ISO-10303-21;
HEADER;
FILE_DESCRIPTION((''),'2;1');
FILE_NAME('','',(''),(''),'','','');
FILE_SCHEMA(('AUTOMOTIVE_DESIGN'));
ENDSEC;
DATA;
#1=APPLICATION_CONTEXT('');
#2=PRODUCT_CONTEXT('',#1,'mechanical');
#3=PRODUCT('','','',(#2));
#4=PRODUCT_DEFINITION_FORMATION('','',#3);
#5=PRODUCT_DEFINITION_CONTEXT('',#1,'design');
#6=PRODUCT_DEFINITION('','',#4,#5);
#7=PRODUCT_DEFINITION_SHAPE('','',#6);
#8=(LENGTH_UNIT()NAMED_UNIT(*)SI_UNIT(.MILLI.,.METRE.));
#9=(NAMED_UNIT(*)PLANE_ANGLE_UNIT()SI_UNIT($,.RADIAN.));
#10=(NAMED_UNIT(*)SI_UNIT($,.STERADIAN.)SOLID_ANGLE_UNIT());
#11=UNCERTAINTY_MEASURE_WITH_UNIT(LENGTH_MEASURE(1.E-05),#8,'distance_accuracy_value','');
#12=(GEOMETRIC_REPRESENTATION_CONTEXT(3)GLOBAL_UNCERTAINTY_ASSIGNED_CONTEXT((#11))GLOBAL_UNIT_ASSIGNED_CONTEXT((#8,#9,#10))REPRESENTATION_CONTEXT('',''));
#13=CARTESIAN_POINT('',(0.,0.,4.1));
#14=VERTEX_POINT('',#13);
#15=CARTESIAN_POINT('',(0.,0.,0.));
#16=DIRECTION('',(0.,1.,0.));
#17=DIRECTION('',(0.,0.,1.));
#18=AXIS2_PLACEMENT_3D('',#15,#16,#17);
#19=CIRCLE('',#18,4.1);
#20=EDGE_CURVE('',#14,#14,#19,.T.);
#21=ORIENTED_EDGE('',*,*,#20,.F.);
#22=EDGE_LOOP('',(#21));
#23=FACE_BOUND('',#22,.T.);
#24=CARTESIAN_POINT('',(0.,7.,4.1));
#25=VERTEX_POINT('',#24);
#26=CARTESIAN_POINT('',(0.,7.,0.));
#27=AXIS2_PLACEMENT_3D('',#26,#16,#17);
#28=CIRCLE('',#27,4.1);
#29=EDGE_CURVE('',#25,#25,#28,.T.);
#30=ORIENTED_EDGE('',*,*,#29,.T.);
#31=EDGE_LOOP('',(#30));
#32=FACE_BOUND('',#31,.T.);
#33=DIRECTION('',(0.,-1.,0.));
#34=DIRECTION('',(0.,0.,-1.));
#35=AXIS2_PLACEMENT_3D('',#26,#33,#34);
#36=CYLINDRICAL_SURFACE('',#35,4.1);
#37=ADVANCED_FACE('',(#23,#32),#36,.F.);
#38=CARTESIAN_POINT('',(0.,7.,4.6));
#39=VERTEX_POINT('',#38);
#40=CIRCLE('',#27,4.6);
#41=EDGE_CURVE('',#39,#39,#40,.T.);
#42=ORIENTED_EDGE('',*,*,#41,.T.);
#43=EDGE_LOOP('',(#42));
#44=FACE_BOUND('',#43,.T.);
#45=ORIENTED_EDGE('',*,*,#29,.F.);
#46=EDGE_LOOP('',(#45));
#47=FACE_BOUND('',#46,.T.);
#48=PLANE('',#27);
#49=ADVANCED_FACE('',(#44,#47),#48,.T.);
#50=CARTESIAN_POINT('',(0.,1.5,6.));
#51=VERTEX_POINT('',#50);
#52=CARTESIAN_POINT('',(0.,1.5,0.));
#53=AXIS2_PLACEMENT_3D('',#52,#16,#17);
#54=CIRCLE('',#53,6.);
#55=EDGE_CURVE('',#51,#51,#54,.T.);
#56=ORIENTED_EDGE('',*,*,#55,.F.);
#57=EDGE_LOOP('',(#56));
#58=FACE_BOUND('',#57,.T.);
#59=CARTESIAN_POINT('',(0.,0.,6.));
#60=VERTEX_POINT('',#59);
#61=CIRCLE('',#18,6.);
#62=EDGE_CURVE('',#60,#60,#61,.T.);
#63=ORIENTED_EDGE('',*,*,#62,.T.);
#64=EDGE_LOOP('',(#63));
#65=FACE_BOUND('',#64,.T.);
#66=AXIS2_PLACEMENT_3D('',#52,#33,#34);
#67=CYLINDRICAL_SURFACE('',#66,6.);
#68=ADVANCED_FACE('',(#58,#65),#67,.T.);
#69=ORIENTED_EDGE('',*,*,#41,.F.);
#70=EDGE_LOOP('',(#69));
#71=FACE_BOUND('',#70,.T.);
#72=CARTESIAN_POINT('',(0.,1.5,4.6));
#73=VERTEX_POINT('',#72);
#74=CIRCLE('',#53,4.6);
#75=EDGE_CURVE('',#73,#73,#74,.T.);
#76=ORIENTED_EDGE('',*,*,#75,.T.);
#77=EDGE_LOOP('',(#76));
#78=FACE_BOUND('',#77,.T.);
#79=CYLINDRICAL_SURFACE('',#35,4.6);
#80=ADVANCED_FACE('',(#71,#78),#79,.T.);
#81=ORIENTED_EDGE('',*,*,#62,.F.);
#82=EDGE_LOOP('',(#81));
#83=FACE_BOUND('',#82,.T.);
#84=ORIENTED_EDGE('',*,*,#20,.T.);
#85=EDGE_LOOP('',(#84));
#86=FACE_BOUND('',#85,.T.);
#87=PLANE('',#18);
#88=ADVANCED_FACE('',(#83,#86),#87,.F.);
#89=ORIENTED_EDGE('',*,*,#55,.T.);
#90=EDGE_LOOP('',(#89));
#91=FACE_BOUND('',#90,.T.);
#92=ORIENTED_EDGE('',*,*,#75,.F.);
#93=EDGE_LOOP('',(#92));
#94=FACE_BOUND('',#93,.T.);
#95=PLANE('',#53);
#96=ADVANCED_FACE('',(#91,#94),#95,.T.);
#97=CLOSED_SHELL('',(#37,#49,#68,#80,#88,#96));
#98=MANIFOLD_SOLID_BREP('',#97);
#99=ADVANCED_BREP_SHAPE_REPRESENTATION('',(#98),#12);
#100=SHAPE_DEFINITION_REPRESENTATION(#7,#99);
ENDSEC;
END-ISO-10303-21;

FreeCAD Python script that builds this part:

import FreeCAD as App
import Part
import Sketcher

doc = App.newDocument("Part")
body = doc.addObject("PartDesign::Body", "Body")

# Sketch on XZ plane
sketch1 = body.newObject("Sketcher::SketchObject", "Sketch")
sketch1.AttachmentSupport = (doc.getObject("XZ_Plane"), [""])
sketch1.MapMode = "FlatFace"
sketch1.addGeometry([
    Part.Circle(App.Vector(0, 0, 0), App.Vector(0, 0, 1), 4.6),
    Part.Circle(App.Vector(0, 0, 0), App.Vector(0, 0, 1), 4.1),
], False)
sketch1.addConstraint([
    Sketcher.Constraint("Coincident", 0, 3, -1, 1),
    Sketcher.Constraint("Coincident", 1, 3, -1, 1),
    Sketcher.Constraint("Diameter", 0, 9.2),
    Sketcher.Constraint("Diameter", 1, 8.2),
])
pad1 = body.newObject("PartDesign::Pad", "Pad")
pad1.Profile = sketch1
pad1.Length = 7
pad1.Reversed = True

# Sketch on XZ plane
sketch2 = body.newObject("Sketcher::SketchObject", "Sketch001")
sketch2.AttachmentSupport = (doc.getObject("XZ_Plane"), [""])
sketch2.MapMode = "FlatFace"
sketch2.addGeometry([
    Part.Circle(App.Vector(0, 0, 0), App.Vector(0, 0, 1), 6),
    Part.Circle(App.Vector(0, 0, 0), App.Vector(0, 0, 1), 4.6),
], False)
sketch2.addConstraint([
    Sketcher.Constraint("Coincident", 0, 3, -1, 1),
    Sketcher.Constraint("Coincident", 1, 3, -1, 1),
    Sketcher.Constraint("Diameter", 0, 12.0),
    Sketcher.Constraint("Diameter", 1, 9.2),
])
pad2 = body.newObject("PartDesign::Pad", "Pad001")
pad2.Profile = sketch2
pad2.Length = 1.5
pad2.Reversed = True

doc.recompute()
